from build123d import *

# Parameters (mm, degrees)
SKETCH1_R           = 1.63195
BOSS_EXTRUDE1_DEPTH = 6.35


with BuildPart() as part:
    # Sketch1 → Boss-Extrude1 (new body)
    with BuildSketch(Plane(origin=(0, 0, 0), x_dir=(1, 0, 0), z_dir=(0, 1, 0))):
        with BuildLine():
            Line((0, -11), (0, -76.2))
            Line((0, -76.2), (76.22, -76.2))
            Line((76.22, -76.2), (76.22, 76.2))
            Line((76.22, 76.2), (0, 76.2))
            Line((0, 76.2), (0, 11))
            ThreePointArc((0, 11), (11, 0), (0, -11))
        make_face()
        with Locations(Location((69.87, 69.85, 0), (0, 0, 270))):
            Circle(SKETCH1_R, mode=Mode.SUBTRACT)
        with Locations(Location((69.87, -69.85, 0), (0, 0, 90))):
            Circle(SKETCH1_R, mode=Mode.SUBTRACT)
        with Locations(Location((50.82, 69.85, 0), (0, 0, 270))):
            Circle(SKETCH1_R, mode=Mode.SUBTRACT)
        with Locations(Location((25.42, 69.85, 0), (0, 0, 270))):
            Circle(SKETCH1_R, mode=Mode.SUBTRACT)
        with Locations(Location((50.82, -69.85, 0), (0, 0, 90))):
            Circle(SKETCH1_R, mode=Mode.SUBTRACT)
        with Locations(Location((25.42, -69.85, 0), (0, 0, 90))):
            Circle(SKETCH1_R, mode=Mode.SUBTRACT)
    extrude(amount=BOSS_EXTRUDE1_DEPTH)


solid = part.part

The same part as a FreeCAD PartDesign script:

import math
import FreeCAD as App
import Part
import Sketcher
from FreeCAD import Vector
Q = App.Units.Quantity

doc = App.newDocument("Part")
body = doc.addObject("PartDesign::Body", "Body")

sketch1 = doc.addObject("Sketcher::SketchObject", "Sketch")
body.addObject(sketch1)
sketch1.AttachmentSupport = (doc.XZ_Plane, [""])
sketch1.MapMode = "FlatFace"
sketch1.addGeometry([
    Part.LineSegment(Vector(0, 11, 0), Vector(0, 76.2, 0)),
    Part.LineSegment(Vector(0, 76.2, 0), Vector(76.2, 76.2, 0)),
    Part.LineSegment(Vector(76.2, 76.2, 0), Vector(76.2, -76.2, 0)),
    Part.LineSegment(Vector(76.2, -76.2, 0), Vector(0, -76.2, 0)),
    Part.LineSegment(Vector(0, -76.2, 0), Vector(0, -11, 0)),
    Part.ArcOfCircle(Part.Circle(Vector(0, 0, 0), Vector(0, 0, 1), 11), math.radians(-90), math.radians(90)),
    Part.Circle(Vector(25.4, 69.8, 0), Vector(0, 0, 1), 1.6),
    Part.Circle(Vector(50.8, 69.8, 0), Vector(0, 0, 1), 1.6),
    Part.Circle(Vector(69.9, 69.8, 0), Vector(0, 0, 1), 1.6),
    Part.Circle(Vector(25.4, -69.8, 0), Vector(0, 0, 1), 1.6),
    Part.Circle(Vector(50.8, -69.8, 0), Vector(0, 0, 1), 1.6),
    Part.Circle(Vector(69.9, -69.8, 0), Vector(0, 0, 1), 1.6),
], False)
sketch1.addConstraint([
    Sketcher.Constraint("Coincident", 0, 2, 1, 1),
    Sketcher.Constraint("Coincident", 1, 2, 2, 1),
    Sketcher.Constraint("Coincident", 2, 2, 3, 1),
    Sketcher.Constraint("Coincident", 3, 2, 4, 1),
    Sketcher.Constraint("Coincident", 4, 2, 5, 1),
    Sketcher.Constraint("Coincident", 5, 2, 0, 1),
    Sketcher.Constraint("Vertical", 0),
    Sketcher.Constraint("Horizontal", 1),
    Sketcher.Constraint("Vertical", 2),
    Sketcher.Constraint("Horizontal", 3),
    Sketcher.Constraint("Vertical", 4),
    Sketcher.Constraint("Coincident", 5, 3, -1, 1),
    Sketcher.Constraint("Equal", 6, 7),
    Sketcher.Constraint("Equal", 7, 8),
    Sketcher.Constraint("Equal", 8, 9),
    Sketcher.Constraint("Equal", 9, 10),
    Sketcher.Constraint("Equal", 10, 11),
    Sketcher.Constraint("Symmetric", 0, 2, 3, 2, -1, 1),
    Sketcher.Constraint("Symmetric", 6, 3, 9, 3, -1),
    Sketcher.Constraint("Symmetric", 7, 3, 10, 3, -1),
    Sketcher.Constraint("Symmetric", 8, 3, 11, 3, -1),
    Sketcher.Constraint("PointOnObject", 0, 2, -2),
    Sketcher.Constraint("Horizontal", 6, 3, 7, 3),
    Sketcher.Constraint("Horizontal", 7, 3, 8, 3),
    Sketcher.Constraint("Radius", 5, Q("11 mm")),
    Sketcher.Constraint("DistanceY", 0, 1, 0, 2, Q("65.2 mm")),
    Sketcher.Constraint("Diameter", 6, Q("3.2639 mm")),
    Sketcher.Constraint("DistanceX", 1, 1, 1, 2, Q("76.22 mm")),
    Sketcher.Constraint("DistanceX", 6, 3, 7, 3, Q("25.4 mm")),
    Sketcher.Constraint("DistanceY", 9, 3, 6, 3, Q("139.7 mm")),
    Sketcher.Constraint("DistanceX", 7, 3, 1, 2, Q("25.4 mm")),
    Sketcher.Constraint("DistanceX", -1, 1, 8, 3, Q("69.87 mm")),
])
pad1 = doc.addObject("PartDesign::Pad", "Pad")
body.addObject(pad1)
pad1.Profile = sketch1
pad1.Length = 6.35
pad1.Reversed = True

doc.recompute()
